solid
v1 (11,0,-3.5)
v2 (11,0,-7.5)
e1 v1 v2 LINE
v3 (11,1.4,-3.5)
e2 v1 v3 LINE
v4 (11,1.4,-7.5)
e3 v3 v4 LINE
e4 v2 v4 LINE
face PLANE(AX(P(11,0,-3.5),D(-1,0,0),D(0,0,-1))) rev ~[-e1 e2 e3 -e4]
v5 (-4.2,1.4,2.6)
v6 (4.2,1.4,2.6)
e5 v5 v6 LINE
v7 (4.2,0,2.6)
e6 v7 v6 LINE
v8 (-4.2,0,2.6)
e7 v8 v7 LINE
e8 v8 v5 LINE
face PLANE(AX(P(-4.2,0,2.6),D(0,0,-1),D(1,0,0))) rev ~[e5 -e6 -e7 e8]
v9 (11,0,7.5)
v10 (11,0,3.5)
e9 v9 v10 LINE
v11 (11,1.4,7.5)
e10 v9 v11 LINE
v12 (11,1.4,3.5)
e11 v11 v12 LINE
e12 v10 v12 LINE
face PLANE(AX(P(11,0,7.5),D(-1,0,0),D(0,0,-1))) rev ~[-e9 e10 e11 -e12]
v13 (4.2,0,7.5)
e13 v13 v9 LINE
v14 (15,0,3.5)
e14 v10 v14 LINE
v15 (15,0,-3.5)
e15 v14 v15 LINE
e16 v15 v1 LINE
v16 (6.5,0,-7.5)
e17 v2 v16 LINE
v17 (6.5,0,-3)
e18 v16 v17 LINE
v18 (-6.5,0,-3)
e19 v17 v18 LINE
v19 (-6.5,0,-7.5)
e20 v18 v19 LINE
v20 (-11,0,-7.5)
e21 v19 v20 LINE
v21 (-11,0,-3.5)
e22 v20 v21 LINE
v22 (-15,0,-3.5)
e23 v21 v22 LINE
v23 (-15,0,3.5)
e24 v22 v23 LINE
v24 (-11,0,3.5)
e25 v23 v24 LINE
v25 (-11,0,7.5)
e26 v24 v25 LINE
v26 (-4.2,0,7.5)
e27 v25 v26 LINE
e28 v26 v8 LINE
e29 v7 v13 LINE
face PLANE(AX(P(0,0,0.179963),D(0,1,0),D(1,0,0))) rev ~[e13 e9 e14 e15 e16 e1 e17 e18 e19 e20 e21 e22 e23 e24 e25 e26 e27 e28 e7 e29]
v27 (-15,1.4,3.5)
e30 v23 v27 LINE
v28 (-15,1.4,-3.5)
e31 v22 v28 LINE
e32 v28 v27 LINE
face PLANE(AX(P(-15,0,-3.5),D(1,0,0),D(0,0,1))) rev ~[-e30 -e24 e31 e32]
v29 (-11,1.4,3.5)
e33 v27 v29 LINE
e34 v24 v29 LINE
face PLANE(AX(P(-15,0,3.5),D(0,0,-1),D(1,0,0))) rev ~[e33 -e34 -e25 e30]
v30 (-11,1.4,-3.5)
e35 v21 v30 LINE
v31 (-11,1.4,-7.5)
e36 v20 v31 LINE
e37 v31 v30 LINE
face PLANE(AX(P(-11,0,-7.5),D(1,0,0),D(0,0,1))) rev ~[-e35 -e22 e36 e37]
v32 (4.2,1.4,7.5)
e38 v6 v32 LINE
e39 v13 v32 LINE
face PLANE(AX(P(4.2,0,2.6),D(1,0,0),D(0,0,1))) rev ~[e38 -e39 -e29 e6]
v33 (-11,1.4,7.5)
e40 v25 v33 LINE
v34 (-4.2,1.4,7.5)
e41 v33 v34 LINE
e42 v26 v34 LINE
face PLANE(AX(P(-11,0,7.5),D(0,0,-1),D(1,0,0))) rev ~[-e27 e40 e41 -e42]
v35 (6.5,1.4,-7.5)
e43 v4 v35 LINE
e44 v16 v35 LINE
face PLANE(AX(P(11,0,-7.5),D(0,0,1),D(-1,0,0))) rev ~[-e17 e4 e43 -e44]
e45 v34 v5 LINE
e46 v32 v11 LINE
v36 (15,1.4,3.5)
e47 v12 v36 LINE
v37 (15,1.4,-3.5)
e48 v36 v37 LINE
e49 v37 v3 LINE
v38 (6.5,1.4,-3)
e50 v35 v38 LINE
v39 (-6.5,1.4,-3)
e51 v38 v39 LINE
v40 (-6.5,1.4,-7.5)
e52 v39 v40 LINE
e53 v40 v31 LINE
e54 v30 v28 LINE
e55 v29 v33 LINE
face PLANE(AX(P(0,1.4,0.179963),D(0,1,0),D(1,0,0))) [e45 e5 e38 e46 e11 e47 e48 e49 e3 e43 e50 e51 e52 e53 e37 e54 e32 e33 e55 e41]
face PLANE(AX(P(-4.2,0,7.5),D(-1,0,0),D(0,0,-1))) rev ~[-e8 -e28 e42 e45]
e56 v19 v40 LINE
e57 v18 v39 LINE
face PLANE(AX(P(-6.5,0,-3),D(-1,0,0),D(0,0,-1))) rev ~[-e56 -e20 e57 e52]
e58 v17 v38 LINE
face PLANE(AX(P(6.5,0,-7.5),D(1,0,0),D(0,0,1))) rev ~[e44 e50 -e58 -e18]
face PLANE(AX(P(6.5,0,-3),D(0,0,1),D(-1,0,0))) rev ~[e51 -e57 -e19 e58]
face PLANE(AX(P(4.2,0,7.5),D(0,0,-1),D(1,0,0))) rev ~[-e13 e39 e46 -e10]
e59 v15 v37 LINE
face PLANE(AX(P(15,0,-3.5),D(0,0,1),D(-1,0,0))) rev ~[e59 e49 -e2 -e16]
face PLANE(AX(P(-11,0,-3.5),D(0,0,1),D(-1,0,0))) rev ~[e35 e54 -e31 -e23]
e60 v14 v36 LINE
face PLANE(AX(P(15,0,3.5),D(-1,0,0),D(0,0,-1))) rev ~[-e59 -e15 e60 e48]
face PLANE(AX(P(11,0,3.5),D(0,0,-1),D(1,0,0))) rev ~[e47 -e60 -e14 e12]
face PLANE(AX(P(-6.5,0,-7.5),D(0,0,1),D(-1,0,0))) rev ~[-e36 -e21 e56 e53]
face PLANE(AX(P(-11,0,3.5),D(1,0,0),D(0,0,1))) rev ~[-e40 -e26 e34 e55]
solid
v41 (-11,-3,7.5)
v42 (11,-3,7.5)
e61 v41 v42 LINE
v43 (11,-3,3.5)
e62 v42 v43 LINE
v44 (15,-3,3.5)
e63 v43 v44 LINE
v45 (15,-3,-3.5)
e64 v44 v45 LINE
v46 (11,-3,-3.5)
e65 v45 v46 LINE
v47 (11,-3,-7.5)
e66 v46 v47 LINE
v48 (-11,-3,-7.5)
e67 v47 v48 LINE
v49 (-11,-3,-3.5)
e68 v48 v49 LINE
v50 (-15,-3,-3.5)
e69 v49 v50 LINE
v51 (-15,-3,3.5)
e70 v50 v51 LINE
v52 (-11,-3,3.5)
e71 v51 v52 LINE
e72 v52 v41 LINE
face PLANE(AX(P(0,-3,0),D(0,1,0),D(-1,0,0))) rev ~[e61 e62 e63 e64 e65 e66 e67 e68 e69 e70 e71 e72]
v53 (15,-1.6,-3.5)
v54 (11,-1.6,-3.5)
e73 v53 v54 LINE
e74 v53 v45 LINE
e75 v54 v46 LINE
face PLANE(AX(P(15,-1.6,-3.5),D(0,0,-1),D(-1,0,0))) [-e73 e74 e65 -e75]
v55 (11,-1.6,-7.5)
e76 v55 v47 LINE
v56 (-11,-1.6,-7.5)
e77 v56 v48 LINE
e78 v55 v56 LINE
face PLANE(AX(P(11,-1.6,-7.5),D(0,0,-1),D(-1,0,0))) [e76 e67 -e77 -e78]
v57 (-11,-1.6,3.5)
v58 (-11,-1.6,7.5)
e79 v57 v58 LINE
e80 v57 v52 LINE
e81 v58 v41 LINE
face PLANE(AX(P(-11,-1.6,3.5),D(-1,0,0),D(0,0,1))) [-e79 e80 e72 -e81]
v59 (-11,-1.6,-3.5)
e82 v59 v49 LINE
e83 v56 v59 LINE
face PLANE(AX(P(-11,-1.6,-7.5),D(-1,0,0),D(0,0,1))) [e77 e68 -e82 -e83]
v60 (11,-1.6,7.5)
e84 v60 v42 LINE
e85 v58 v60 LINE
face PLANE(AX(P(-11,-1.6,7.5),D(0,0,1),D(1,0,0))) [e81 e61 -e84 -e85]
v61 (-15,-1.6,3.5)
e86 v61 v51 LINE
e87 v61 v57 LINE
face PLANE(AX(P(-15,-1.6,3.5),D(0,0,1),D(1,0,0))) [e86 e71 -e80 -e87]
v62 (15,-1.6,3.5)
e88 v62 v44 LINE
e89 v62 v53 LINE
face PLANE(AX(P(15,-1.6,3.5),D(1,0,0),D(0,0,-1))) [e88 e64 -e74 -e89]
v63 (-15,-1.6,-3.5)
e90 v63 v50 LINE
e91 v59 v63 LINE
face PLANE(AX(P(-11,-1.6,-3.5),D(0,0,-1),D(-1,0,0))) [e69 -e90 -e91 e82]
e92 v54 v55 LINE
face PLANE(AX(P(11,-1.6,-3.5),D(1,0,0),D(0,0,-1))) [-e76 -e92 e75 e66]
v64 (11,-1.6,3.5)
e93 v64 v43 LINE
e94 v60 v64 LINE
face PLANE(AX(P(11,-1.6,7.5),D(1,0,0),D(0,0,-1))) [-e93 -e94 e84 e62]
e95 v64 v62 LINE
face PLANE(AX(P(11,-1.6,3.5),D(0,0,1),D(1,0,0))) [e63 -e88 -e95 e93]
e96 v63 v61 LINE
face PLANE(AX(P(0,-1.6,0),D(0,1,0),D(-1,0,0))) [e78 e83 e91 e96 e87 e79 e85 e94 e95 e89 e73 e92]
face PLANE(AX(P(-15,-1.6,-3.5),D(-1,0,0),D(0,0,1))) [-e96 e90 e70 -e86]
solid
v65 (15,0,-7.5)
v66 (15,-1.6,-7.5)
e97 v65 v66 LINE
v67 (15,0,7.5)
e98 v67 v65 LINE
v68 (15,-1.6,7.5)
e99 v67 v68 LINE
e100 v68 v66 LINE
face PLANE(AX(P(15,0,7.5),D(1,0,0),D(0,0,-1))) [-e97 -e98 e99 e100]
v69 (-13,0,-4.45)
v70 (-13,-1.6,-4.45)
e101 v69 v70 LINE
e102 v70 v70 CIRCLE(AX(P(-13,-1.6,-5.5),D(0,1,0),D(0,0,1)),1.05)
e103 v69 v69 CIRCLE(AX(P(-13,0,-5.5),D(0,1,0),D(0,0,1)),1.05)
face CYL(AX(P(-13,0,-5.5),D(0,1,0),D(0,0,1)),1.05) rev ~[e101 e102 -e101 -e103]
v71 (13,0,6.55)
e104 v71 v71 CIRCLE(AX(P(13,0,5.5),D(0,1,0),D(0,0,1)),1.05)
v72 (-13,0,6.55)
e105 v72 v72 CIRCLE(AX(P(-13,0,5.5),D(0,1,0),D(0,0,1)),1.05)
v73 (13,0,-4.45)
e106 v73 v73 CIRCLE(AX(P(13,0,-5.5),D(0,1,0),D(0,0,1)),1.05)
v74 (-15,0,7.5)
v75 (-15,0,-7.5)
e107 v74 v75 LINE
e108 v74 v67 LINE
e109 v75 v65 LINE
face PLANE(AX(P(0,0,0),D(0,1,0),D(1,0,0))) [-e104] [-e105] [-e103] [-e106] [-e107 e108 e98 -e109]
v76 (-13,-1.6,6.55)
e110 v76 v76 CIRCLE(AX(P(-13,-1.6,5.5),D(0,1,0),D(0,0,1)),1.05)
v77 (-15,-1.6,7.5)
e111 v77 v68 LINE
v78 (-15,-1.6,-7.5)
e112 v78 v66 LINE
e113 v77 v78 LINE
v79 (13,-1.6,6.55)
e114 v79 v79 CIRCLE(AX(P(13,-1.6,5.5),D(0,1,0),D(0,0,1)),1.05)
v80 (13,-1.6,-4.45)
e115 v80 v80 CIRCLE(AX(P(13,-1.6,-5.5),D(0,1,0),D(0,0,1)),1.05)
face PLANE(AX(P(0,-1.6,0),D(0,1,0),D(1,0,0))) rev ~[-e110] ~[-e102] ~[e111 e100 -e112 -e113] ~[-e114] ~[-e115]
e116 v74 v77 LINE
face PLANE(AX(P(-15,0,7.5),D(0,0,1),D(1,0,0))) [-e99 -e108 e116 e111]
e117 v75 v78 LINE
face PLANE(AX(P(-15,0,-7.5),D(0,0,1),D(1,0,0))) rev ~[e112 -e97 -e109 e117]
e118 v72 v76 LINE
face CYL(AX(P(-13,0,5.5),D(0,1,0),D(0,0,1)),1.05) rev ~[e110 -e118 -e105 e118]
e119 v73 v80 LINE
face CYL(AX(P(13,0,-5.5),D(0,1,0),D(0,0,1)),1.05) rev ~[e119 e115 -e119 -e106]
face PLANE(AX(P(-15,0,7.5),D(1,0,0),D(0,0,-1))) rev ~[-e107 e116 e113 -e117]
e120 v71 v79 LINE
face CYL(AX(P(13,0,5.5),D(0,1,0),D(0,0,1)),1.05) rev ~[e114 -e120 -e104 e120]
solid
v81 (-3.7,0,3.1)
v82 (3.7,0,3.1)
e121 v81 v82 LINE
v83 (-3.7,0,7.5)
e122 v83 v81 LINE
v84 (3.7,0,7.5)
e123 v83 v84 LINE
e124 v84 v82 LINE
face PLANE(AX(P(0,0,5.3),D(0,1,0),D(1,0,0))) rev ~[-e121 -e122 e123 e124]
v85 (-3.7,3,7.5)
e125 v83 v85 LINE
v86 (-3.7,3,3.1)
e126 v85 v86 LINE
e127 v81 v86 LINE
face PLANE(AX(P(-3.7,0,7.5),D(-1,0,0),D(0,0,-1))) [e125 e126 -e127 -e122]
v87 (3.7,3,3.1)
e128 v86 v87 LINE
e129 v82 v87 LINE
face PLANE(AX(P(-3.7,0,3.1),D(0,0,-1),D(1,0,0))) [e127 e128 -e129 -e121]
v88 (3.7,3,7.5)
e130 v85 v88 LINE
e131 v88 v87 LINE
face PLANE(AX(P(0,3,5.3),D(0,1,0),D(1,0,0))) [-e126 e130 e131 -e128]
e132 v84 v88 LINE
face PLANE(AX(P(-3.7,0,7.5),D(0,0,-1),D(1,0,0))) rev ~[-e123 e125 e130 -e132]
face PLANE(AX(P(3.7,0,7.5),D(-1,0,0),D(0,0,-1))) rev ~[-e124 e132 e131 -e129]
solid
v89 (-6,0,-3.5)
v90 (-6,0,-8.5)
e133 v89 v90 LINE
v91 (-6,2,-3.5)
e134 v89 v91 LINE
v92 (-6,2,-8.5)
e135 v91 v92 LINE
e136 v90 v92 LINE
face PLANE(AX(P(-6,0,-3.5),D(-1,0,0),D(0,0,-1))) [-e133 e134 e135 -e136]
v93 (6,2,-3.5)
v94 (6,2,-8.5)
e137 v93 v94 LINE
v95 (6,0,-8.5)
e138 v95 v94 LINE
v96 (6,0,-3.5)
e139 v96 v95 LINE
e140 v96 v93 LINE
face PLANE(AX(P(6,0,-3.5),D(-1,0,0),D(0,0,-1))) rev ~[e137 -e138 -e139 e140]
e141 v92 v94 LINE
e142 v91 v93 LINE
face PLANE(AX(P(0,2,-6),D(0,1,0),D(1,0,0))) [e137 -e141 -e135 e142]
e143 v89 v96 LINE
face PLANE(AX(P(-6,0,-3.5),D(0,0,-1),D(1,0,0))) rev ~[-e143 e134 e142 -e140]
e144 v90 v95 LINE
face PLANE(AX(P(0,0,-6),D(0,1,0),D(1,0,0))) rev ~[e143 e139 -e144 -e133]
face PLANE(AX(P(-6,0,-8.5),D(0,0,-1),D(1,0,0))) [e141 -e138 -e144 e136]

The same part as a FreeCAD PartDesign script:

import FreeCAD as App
import Part
import Sketcher
from FreeCAD import Vector

doc = App.newDocument("Part")
params = doc.addObject("Spreadsheet::Sheet", "Params")
for row, (alias, value) in enumerate([
    ("sketch1_diameter", "2.1 mm"),
    ("sketch1_width", "30 mm"),
    ("sketch1_height", "15 mm"),
    ("pad1_length", "1.6 mm"),
    ("sketch2_width", "12 mm"),
    ("sketch2_height", "5 mm"),
    ("pad2_length", "2 mm"),
    ("sketch3_width", "7.4 mm"),
    ("sketch3_height", "4.4 mm"),
    ("pad3_length", "3 mm"),
    ("sketch4_width", "4 mm"),
    ("sketch4_width2", "22 mm"),
    ("sketch4_height", "7 mm"),
    ("pad4_length", "1.4 mm"),
    ("sketch5_width", "4 mm"),
    ("sketch5_width2", "13 mm"),
    ("sketch5_height", "7 mm"),
    ("sketch5_width3", "6.8 mm"),
    ("sketch5_width4", "8.4 mm"),
    ("pad5_length", "1.4 mm"),
], start=1):
    params.set(f"A{row}", alias)
    params.set(f"B{row}", "=" + value)
    params.setAlias(f"B{row}", alias)

body = doc.addObject("PartDesign::Body", "Body")

sketch1 = body.newObject("Sketcher::SketchObject", "Sketch")
sketch1.AttachmentSupport = (doc.getObject("XZ_Plane"), [""])
sketch1.MapMode = "FlatFace"
sketch1.addGeometry([
    Part.LineSegment(Vector(-15, -7.5, 0), Vector(-15, 7.5, 0)),
    Part.LineSegment(Vector(-15, 7.5, 0), Vector(15, 7.5, 0)),
    Part.LineSegment(Vector(15, 7.5, 0), Vector(15, -7.5, 0)),
    Part.LineSegment(Vector(15, -7.5, 0), Vector(-15, -7.5, 0)),
    Part.Circle(Vector(-13, 5.5, 0), Vector(0, 0, 1), 1.1),
    Part.Circle(Vector(13, 5.5, 0), Vector(0, 0, 1), 1.1),
    Part.Circle(Vector(-13, -5.5, 0), Vector(0, 0, 1), 1.1),
    Part.Circle(Vector(13, -5.5, 0), Vector(0, 0, 1), 1.1),
], False)
sketch1.addConstraint([
    Sketcher.Constraint("Coincident", 0, 2, 1, 1),
    Sketcher.Constraint("Coincident", 1, 2, 2, 1),
    Sketcher.Constraint("Coincident", 2, 2, 3, 1),
    Sketcher.Constraint("Coincident", 3, 2, 0, 1),
    Sketcher.Constraint("Vertical", 0),
    Sketcher.Constraint("Horizontal", 1),
    Sketcher.Constraint("Vertical", 2),
    Sketcher.Constraint("Horizontal", 3),
    Sketcher.Constraint("Equal", 4, 5),
    Sketcher.Constraint("Equal", 5, 6),
    Sketcher.Constraint("Equal", 6, 7),
    Sketcher.Constraint("Symmetric", 5, 3, 6, 3, -1, 1),
    Sketcher.Constraint("Symmetric", 4, 3, 7, 3, -1, 1),
    Sketcher.Constraint("Symmetric", 0, 2, 2, 2, -1, 1),
    Sketcher.Constraint("Symmetric", 4, 3, 5, 3, -2),
    Sketcher.Constraint("Diameter", 4, 2.1),
    Sketcher.Constraint("DistanceX", 1, 1, 1, 2, 30.0),
    Sketcher.Constraint("DistanceY", 0, 1, 0, 2, 15.0),
    Sketcher.Constraint("DistanceX", 4, 3, -1, 1, 13.0),
    Sketcher.Constraint("DistanceY", 6, 3, 4, 3, 11.0),
])
sketch1.setExpression("Constraints[15]", "Params.sketch1_diameter")
sketch1.setExpression("Constraints[16]", "Params.sketch1_width")
sketch1.setExpression("Constraints[17]", "Params.sketch1_height")
pad1 = body.newObject("PartDesign::Pad", "Pad")
pad1.Profile = sketch1
pad1.setExpression("Length", "Params.pad1_length")
body2 = doc.addObject("PartDesign::Body", "Body001")

sketch2 = body2.newObject("Sketcher::SketchObject", "Sketch001")
sketch2.AttachmentSupport = (doc.getObject("XZ_Plane001"), [""])
sketch2.MapMode = "FlatFace"
sketch2.addGeometry([
    Part.LineSegment(Vector(-6, -8, 0), Vector(-6, -4, 0)),
    Part.LineSegment(Vector(-6, -4, 0), Vector(6, -4, 0)),
    Part.LineSegment(Vector(6, -4, 0), Vector(6, -8, 0)),
    Part.LineSegment(Vector(6, -8, 0), Vector(-6, -8, 0)),
], False)
sketch2.addConstraint([
    Sketcher.Constraint("Coincident", 0, 2, 1, 1),
    Sketcher.Constraint("Coincident", 1, 2, 2, 1),
    Sketcher.Constraint("Coincident", 2, 2, 3, 1),
    Sketcher.Constraint("Coincident", 3, 2, 0, 1),
    Sketcher.Constraint("Vertical", 0),
    Sketcher.Constraint("Horizontal", 1),
    Sketcher.Constraint("Vertical", 2),
    Sketcher.Constraint("Horizontal", 3),
    Sketcher.Constraint("DistanceX", 1, 1, 1, 2, 12.0),
    Sketcher.Constraint("DistanceY", 0, 1, 0, 2, 5.0),
    Sketcher.Constraint("DistanceX", 0, 2, -1, 1, 6.0),
    Sketcher.Constraint("DistanceY", 0, 2, -1, 1, 3.5),
])
sketch2.setExpression("Constraints[8]", "Params.sketch2_width")
sketch2.setExpression("Constraints[9]", "Params.sketch2_height")
pad2 = body2.newObject("PartDesign::Pad", "Pad001")
pad2.Profile = sketch2
pad2.setExpression("Length", "Params.pad2_length")
pad2.Reversed = True
body3 = doc.addObject("PartDesign::Body", "Body002")

sketch3 = body3.newObject("Sketcher::SketchObject", "Sketch002")
sketch3.AttachmentSupport = (doc.getObject("XZ_Plane002"), [""])
sketch3.MapMode = "FlatFace"
sketch3.addGeometry([
    Part.LineSegment(Vector(-3.7, 3.1, 0), Vector(-3.7, 7.5, 0)),
    Part.LineSegment(Vector(-3.7, 7.5, 0), Vector(3.7, 7.5, 0)),
    Part.LineSegment(Vector(3.7, 7.5, 0), Vector(3.7, 3.1, 0)),
    Part.LineSegment(Vector(3.7, 3.1, 0), Vector(-3.7, 3.1, 0)),
], False)
sketch3.addConstraint([
    Sketcher.Constraint("Coincident", 0, 2, 1, 1),
    Sketcher.Constraint("Coincident", 1, 2, 2, 1),
    Sketcher.Constraint("Coincident", 2, 2, 3, 1),
    Sketcher.Constraint("Coincident", 3, 2, 0, 1),
    Sketcher.Constraint("Vertical", 0),
    Sketcher.Constraint("Horizontal", 1),
    Sketcher.Constraint("Vertical", 2),
    Sketcher.Constraint("Horizontal", 3),
    Sketcher.Constraint("DistanceX", 1, 1, 1, 2, 7.4),
    Sketcher.Constraint("DistanceY", 0, 1, 0, 2, 4.4),
    Sketcher.Constraint("DistanceX", 0, 2, -1, 1, 3.7),
    Sketcher.Constraint("DistanceY", -1, 1, 0, 2, 7.5),
])
sketch3.setExpression("Constraints[8]", "Params.sketch3_width")
sketch3.setExpression("Constraints[9]", "Params.sketch3_height")
pad3 = body3.newObject("PartDesign::Pad", "Pad002")
pad3.Profile = sketch3
pad3.setExpression("Length", "Params.pad3_length")
pad3.Reversed = True
body4 = doc.addObject("PartDesign::Body", "Body003")

sketch4 = body4.newObject("Sketcher::SketchObject", "Sketch003")
sketch4.AttachmentSupport = (doc.getObject("XZ_Plane003"), [""])
sketch4.MapMode = "FlatFace"
sketch4.AttachmentOffset = App.Placement(Vector(0, 0, 1.6), App.Rotation())
sketch4.addGeometry([
    Part.LineSegment(Vector(-11, 3.5, 0), Vector(-15, 3.5, 0)),
    Part.LineSegment(Vector(-15, 3.5, 0), Vector(-15, -3.5, 0)),
    Part.LineSegment(Vector(-15, -3.5, 0), Vector(-11, -3.5, 0)),
    Part.LineSegment(Vector(-11, -3.5, 0), Vector(-11, -7.5, 0)),
    Part.LineSegment(Vector(-11, -7.5, 0), Vector(11, -7.5, 0)),
    Part.LineSegment(Vector(11, -7.5, 0), Vector(11, -3.5, 0)),
    Part.LineSegment(Vector(11, -3.5, 0), Vector(15, -3.5, 0)),
    Part.LineSegment(Vector(15, -3.5, 0), Vector(15, 3.5, 0)),
    Part.LineSegment(Vector(15, 3.5, 0), Vector(11, 3.5, 0)),
    Part.LineSegment(Vector(11, 3.5, 0), Vector(11, 7.5, 0)),
    Part.LineSegment(Vector(11, 7.5, 0), Vector(-11, 7.5, 0)),
    Part.LineSegment(Vector(-11, 7.5, 0), Vector(-11, 3.5, 0)),
], False)
sketch4.addConstraint([
    Sketcher.Constraint("Coincident", 0, 2, 1, 1),
    Sketcher.Constraint("Coincident", 1, 2, 2, 1),
    Sketcher.Constraint("Coincident", 2, 2, 3, 1),
    Sketcher.Constraint("Coincident", 3, 2, 4, 1),
    Sketcher.Constraint("Coincident", 4, 2, 5, 1),
    Sketcher.Constraint("Coincident", 5, 2, 6, 1),
    Sketcher.Constraint("Coincident", 6, 2, 7, 1),
    Sketcher.Constraint("Coincident", 7, 2, 8, 1),
    Sketcher.Constraint("Coincident", 8, 2, 9, 1),
    Sketcher.Constraint("Coincident", 9, 2, 10, 1),
    Sketcher.Constraint("Coincident", 10, 2, 11, 1),
    Sketcher.Constraint("Coincident", 11, 2, 0, 1),
    Sketcher.Constraint("Horizontal", 0),
    Sketcher.Constraint("Vertical", 1),
    Sketcher.Constraint("Horizontal", 2),
    Sketcher.Constraint("Vertical", 3),
    Sketcher.Constraint("Horizontal", 4),
    Sketcher.Constraint("Vertical", 5),
    Sketcher.Constraint("Horizontal", 6),
    Sketcher.Constraint("Vertical", 7),
    Sketcher.Constraint("Horizontal", 8),
    Sketcher.Constraint("Vertical", 9),
    Sketcher.Constraint("Horizontal", 10),
    Sketcher.Constraint("Vertical", 11),
    Sketcher.Constraint("Symmetric", 0, 2, 6, 2, -1, 1),
    Sketcher.Constraint("Symmetric", 2, 2, 8, 2, -1, 1),
    Sketcher.Constraint("Symmetric", 4, 2, 10, 2, -1, 1),
    Sketcher.Constraint("Symmetric", 2, 2, 5, 2, -2),
    Sketcher.Constraint("Equal", 8, 3),
    Sketcher.Constraint("DistanceX", 0, 2, 0, 1, 4.0),
    Sketcher.Constraint("DistanceX", 4, 1, 4, 2, 22.0),
    Sketcher.Constraint("DistanceY", 1, 2, 1, 1, 7.0),
])
sketch4.setExpression("Constraints[29]", "Params.sketch4_width")
sketch4.setExpression("Constraints[30]", "Params.sketch4_width2")
sketch4.setExpression("Constraints[31]", "Params.sketch4_height")
pad4 = body4.newObject("PartDesign::Pad", "Pad003")
pad4.Profile = sketch4
pad4.setExpression("Length", "Params.pad4_length")
body5 = doc.addObject("PartDesign::Body", "Body004")

sketch5 = body5.newObject("Sketcher::SketchObject", "Sketch004")
sketch5.AttachmentSupport = (doc.getObject("XZ_Plane004"), [""])
sketch5.MapMode = "FlatFace"
sketch5.addGeometry([
    Part.LineSegment(Vector(-11, 3.5, 0), Vector(-11, 7.5, 0)),
    Part.LineSegment(Vector(-11, 7.5, 0), Vector(-4.2, 7.5, 0)),
    Part.LineSegment(Vector(-4.2, 7.5, 0), Vector(-4.2, 2.6, 0)),
    Part.LineSegment(Vector(-4.2, 2.6, 0), Vector(4.2, 2.6, 0)),
    Part.LineSegment(Vector(4.2, 2.6, 0), Vector(4.2, 7.5, 0)),
    Part.LineSegment(Vector(4.2, 7.5, 0), Vector(11, 7.5, 0)),
    Part.LineSegment(Vector(11, 7.5, 0), Vector(11, 3.5, 0)),
    Part.LineSegment(Vector(11, 3.5, 0), Vector(15, 3.5, 0)),
    Part.LineSegment(Vector(15, 3.5, 0), Vector(15, -3.5, 0)),
    Part.LineSegment(Vector(15, -3.5, 0), Vector(11, -3.5, 0)),
    Part.LineSegment(Vector(11, -3.5, 0), Vector(11, -7.5, 0)),
    Part.LineSegment(Vector(11, -7.5, 0), Vector(6.5, -7.5, 0)),
    Part.LineSegment(Vector(6.5, -7.5, 0), Vector(6.5, -3, 0)),
    Part.LineSegment(Vector(6.5, -3, 0), Vector(-6.5, -3, 0)),
    Part.LineSegment(Vector(-6.5, -3, 0), Vector(-6.5, -7.5, 0)),
    Part.LineSegment(Vector(-6.5, -7.5, 0), Vector(-11, -7.5, 0)),
    Part.LineSegment(Vector(-11, -7.5, 0), Vector(-11, -3.5, 0)),
    Part.LineSegment(Vector(-11, -3.5, 0), Vector(-15, -3.5, 0)),
    Part.LineSegment(Vector(-15, -3.5, 0), Vector(-15, 3.5, 0)),
    Part.LineSegment(Vector(-15, 3.5, 0), Vector(-11, 3.5, 0)),
], False)
sketch5.addConstraint([
    Sketcher.Constraint("Coincident", 0, 2, 1, 1),
    Sketcher.Constraint("Coincident", 1, 2, 2, 1),
    Sketcher.Constraint("Coincident", 2, 2, 3, 1),
    Sketcher.Constraint("Coincident", 3, 2, 4, 1),
    Sketcher.Constraint("Coincident", 4, 2, 5, 1),
    Sketcher.Constraint("Coincident", 5, 2, 6, 1),
    Sketcher.Constraint("Coincident", 6, 2, 7, 1),
    Sketcher.Constraint("Coincident", 7, 2, 8, 1),
    Sketcher.Constraint("Coincident", 8, 2, 9, 1),
    Sketcher.Constraint("Coincident", 9, 2, 10, 1),
    Sketcher.Constraint("Coincident", 10, 2, 11, 1),
    Sketcher.Constraint("Coincident", 11, 2, 12, 1),
    Sketcher.Constraint("Coincident", 12, 2, 13, 1),
    Sketcher.Constraint("Coincident", 13, 2, 14, 1),
    Sketcher.Constraint("Coincident", 14, 2, 15, 1),
    Sketcher.Constraint("Coincident", 15, 2, 16, 1),
    Sketcher.Constraint("Coincident", 16, 2, 17, 1),
    Sketcher.Constraint("Coincident", 17, 2, 18, 1),
    Sketcher.Constraint("Coincident", 18, 2, 19, 1),
    Sketcher.Constraint("Coincident", 19, 2, 0, 1),
    Sketcher.Constraint("Vertical", 0),
    Sketcher.Constraint("Horizontal", 1),
    Sketcher.Constraint("Vertical", 2),
    Sketcher.Constraint("Horizontal", 3),
    Sketcher.Constraint("Vertical", 4),
    Sketcher.Constraint("Horizontal", 5),
    Sketcher.Constraint("Vertical", 6),
    Sketcher.Constraint("Horizontal", 7),
    Sketcher.Constraint("Vertical", 8),
    Sketcher.Constraint("Horizontal", 9),
    Sketcher.Constraint("Vertical", 10),
    Sketcher.Constraint("Horizontal", 11),
    Sketcher.Constraint("Vertical", 12),
    Sketcher.Constraint("Horizontal", 13),
    Sketcher.Constraint("Vertical", 14),
    Sketcher.Constraint("Horizontal", 15),
    Sketcher.Constraint("Vertical", 16),
    Sketcher.Constraint("Horizontal", 17),
    Sketcher.Constraint("Vertical", 18),
    Sketcher.Constraint("Horizontal", 19),
    Sketcher.Constraint("Symmetric", 0, 2, 10, 2, -1, 1),
    Sketcher.Constraint("Symmetric", 5, 2, 15, 2, -1, 1),
    Sketcher.Constraint("Symmetric", 7, 2, 17, 2, -1, 1),
    Sketcher.Constraint("Symmetric", 1, 2, 4, 2, -2),
    Sketcher.Constraint("Symmetric", 9, 2, 16, 2, -2),
    Sketcher.Constraint("Horizontal", 7, 2, 18, 2),
    Sketcher.Constraint("Equal", 11, 15),
    Sketcher.Constraint("Equal", 19, 0),
    Sketcher.Constraint("Equal", 15, 12),
    Sketcher.Constraint("DistanceX", 7, 1, 7, 2, 4.0),
    Sketcher.Constraint("DistanceX", 13, 2, 13, 1, 13.0),
    Sketcher.Constraint("DistanceY", 8, 2, 8, 1, 7.0),
    Sketcher.Constraint("DistanceX", 1, 1, 1, 2, 6.8),
    Sketcher.Constraint("DistanceX", 3, 1, 3, 2, 8.4),
    Sketcher.Constraint("DistanceY", 2, 2, 2, 1, 4.9),
])
sketch5.setExpression("Constraints[49]", "Params.sketch5_width")
sketch5.setExpression("Constraints[50]", "Params.sketch5_width2")
sketch5.setExpression("Constraints[51]", "Params.sketch5_height")
sketch5.setExpression("Constraints[52]", "Params.sketch5_width3")
sketch5.setExpression("Constraints[53]", "Params.sketch5_width4")
pad5 = body5.newObject("PartDesign::Pad", "Pad004")
pad5.Profile = sketch5
pad5.setExpression("Length", "Params.pad5_length")
pad5.Reversed = True

doc.recompute()
